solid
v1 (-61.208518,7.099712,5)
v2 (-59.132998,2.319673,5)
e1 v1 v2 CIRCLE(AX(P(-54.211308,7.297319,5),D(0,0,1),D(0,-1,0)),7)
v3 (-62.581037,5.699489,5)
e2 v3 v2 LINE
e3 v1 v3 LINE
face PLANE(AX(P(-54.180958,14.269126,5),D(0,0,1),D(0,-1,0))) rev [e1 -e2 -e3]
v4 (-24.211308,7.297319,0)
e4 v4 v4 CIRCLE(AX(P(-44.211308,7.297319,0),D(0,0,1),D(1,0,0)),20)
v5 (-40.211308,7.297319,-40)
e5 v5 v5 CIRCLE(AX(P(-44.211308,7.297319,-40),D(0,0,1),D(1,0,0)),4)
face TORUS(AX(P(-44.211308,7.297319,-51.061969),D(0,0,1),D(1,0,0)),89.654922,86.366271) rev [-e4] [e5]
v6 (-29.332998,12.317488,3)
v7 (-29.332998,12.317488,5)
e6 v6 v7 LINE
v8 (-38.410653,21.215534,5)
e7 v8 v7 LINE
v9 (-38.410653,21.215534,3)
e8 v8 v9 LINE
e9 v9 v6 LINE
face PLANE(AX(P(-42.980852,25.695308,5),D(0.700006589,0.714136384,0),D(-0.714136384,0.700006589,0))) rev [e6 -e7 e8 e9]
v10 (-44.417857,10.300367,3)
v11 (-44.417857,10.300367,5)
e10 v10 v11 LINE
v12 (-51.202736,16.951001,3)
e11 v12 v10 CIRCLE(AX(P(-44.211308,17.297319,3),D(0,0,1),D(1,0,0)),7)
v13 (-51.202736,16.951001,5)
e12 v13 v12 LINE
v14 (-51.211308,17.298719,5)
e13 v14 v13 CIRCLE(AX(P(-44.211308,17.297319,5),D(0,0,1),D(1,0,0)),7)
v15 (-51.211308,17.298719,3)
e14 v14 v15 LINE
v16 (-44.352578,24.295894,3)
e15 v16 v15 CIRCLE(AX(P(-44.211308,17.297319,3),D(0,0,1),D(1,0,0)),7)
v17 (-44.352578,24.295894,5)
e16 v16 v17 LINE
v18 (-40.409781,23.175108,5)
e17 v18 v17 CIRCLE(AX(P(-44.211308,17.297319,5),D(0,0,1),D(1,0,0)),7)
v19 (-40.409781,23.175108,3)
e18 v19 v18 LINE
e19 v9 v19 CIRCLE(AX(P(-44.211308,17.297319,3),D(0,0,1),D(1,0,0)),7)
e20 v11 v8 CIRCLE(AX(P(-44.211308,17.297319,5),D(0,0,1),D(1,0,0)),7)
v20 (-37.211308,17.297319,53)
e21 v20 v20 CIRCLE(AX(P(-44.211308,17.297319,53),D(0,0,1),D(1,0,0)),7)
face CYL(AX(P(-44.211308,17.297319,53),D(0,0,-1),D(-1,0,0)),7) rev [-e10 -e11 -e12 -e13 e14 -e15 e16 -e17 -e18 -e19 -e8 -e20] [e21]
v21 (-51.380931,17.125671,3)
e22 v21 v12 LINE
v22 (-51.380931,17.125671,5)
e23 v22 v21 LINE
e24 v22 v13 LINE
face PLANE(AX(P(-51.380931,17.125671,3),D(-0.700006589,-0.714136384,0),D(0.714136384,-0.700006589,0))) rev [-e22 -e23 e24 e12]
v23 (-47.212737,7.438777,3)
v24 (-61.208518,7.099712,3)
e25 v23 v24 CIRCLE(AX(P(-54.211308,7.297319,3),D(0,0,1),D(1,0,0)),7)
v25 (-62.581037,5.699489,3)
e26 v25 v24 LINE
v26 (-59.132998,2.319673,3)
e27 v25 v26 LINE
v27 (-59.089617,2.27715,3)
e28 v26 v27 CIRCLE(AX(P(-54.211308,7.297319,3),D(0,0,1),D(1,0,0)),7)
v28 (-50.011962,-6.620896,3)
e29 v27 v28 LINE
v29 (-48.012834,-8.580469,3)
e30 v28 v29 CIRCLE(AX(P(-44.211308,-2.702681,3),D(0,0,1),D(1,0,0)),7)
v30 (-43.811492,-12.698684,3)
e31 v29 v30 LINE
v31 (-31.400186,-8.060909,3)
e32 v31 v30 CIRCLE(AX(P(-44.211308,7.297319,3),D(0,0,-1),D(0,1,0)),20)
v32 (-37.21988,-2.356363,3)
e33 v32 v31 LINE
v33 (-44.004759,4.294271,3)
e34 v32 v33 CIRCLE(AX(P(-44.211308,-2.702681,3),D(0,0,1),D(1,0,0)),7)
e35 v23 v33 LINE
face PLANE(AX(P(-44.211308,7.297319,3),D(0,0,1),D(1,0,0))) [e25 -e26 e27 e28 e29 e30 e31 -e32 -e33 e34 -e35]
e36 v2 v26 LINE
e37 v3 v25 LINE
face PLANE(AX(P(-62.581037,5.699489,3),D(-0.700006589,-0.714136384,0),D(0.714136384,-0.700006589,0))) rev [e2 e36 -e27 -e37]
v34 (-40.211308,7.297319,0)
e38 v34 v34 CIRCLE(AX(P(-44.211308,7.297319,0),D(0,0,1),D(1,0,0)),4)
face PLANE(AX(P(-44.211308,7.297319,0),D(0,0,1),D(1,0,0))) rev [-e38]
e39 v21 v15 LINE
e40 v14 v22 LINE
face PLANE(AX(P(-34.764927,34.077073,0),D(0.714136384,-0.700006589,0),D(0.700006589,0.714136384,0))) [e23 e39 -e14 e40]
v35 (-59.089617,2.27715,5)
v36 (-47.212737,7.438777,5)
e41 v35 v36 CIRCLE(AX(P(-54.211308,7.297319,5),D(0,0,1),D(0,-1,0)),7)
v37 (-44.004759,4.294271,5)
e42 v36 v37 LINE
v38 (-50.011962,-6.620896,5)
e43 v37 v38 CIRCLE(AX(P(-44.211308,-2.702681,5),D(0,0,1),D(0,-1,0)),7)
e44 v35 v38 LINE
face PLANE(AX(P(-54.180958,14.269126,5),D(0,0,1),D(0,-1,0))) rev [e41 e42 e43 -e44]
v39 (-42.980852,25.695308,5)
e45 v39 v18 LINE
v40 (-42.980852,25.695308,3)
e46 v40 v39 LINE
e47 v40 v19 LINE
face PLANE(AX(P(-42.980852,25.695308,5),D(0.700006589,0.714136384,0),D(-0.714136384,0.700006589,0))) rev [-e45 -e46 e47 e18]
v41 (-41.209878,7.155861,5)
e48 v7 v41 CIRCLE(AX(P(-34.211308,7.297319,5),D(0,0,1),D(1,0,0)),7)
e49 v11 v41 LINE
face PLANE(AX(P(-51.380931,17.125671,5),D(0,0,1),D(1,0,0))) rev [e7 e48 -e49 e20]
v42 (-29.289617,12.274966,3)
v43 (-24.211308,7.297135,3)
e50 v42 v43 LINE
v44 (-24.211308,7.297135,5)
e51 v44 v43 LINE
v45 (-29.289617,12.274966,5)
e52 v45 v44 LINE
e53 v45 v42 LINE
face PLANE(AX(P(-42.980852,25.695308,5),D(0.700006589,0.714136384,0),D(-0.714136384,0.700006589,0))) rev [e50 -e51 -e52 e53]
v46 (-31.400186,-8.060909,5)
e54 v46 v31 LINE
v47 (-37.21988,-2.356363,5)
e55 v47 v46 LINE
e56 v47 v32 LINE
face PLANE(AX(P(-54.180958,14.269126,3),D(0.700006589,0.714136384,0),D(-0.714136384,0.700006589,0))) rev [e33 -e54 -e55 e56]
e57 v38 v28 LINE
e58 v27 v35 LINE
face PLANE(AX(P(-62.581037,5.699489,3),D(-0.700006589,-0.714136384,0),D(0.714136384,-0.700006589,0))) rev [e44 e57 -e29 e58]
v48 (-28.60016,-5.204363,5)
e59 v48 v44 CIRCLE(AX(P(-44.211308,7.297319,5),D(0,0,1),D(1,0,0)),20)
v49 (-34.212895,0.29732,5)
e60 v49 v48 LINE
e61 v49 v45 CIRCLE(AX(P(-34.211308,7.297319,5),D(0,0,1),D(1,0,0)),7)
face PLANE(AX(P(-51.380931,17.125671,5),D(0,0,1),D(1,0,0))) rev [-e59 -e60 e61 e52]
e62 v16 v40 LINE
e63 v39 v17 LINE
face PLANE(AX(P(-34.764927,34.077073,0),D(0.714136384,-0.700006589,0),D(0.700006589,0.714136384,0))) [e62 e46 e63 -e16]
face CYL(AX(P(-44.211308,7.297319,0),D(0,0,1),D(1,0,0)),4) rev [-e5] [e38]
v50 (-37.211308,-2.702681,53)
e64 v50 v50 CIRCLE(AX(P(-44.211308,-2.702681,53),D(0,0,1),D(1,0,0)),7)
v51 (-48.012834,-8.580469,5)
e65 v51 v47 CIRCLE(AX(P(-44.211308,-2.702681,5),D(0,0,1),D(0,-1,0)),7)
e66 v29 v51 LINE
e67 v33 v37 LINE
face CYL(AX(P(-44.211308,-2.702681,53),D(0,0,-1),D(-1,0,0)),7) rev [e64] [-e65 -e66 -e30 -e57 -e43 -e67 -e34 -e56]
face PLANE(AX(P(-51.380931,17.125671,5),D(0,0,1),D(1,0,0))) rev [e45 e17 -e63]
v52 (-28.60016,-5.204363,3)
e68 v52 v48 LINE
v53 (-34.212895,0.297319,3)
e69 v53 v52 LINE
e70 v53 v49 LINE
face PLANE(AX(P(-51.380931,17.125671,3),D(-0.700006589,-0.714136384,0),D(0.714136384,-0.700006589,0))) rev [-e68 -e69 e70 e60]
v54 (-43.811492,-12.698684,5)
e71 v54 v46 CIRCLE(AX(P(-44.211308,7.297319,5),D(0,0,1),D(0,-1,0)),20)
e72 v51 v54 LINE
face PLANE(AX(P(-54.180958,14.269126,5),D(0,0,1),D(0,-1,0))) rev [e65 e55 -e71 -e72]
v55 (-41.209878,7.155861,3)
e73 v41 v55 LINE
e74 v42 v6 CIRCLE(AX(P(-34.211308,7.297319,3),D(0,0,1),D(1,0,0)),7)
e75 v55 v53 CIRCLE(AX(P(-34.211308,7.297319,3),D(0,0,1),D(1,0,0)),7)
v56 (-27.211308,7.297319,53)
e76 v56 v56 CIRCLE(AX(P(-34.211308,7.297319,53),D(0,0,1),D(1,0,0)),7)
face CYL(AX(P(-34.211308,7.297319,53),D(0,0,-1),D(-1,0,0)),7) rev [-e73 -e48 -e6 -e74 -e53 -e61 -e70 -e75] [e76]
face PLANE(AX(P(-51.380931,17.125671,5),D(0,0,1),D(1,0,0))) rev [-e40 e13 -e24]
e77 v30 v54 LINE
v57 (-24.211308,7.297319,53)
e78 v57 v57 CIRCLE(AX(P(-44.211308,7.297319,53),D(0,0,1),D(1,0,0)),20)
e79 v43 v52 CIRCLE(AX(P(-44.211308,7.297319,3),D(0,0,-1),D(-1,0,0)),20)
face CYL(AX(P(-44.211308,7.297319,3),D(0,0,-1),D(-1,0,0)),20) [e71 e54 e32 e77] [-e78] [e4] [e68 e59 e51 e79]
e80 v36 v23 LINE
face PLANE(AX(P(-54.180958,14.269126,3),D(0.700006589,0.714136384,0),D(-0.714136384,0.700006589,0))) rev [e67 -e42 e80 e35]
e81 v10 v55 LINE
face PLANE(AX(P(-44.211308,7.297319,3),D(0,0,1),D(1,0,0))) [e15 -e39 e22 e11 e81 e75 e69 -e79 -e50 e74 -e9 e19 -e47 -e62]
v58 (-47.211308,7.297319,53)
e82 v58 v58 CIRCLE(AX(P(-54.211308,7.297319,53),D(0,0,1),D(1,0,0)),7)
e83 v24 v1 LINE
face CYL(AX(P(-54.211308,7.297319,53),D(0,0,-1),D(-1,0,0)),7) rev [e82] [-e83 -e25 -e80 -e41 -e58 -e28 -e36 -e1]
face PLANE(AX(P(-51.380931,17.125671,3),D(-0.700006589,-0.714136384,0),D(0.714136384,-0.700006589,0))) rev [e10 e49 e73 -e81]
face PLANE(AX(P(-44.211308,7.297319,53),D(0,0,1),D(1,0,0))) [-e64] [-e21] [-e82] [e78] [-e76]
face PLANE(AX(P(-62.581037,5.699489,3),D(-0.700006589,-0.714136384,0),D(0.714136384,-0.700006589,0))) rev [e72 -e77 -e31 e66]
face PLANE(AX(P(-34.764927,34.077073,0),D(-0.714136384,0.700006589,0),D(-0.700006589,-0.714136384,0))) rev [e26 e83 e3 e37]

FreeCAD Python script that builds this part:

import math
import FreeCAD as App
import Part
import Sketcher

V = App.Vector
Q = App.Units.Quantity

doc = App.newDocument("Part")
body = doc.addObject("PartDesign::Body", "Body")

# Sketch on XY plane
sketch1 = body.newObject("Sketcher::SketchObject", "Sketch")
sketch1.AttachmentSupport = (doc.getObject("XY_Plane"), [""])
sketch1.MapMode = "FlatFace"
sketch1.addGeometry(Part.Circle(V(-44, 7, 0), V(0, 0, 1), 20), False)
sketch1.addConstraint([
    Sketcher.Constraint("Diameter", 0, Q("40 mm")),
    Sketcher.Constraint("DistanceY", -1, 1, 0, 3, Q("7.297319 mm")),
    Sketcher.Constraint("DistanceX", 0, 3, -1, 1, Q("44.211308 mm")),
])
pad1 = body.newObject("PartDesign::Pad", "Pad")
pad1.Profile = sketch1
pad1.Length = 3

# Sketch on XY plane
sketch2 = body.newObject("Sketcher::SketchObject", "Sketch001")
sketch2.AttachmentSupport = (doc.getObject("XY_Plane"), [""])
sketch2.MapMode = "FlatFace"
sketch2.AttachmentOffset = App.Placement(V(0, 0, 3), App.Rotation())
sketch2.addGeometry([
    Part.Circle(V(-44, 7, 0), V(0, 0, 1), 20),  # 0
    Part.Circle(V(-44, -3, 0), V(0, 0, 1), 7),  # 1
    Part.Circle(V(-54, 7, 0), V(0, 0, 1), 7),  # 2
    Part.Circle(V(-34, 7, 0), V(0, 0, 1), 7),  # 3
    Part.Circle(V(-44, 17, 0), V(0, 0, 1), 7),  # 4
], False)
sketch2.addConstraint([
    Sketcher.Constraint("Equal", 1, 2),
    Sketcher.Constraint("Equal", 2, 3),
    Sketcher.Constraint("Equal", 3, 4),
    Sketcher.Constraint("Horizontal", 0, 3, 2, 3),
    Sketcher.Constraint("Horizontal", 2, 3, 3, 3),
    Sketcher.Constraint("Vertical", 0, 3, 1, 3),
    Sketcher.Constraint("Vertical", 1, 3, 4, 3),
    Sketcher.Constraint("Diameter", 0, Q("40 mm")),
    Sketcher.Constraint("Diameter", 1, Q("14 mm")),
    Sketcher.Constraint("DistanceY", 1, 3, 0, 3, Q("10 mm")),
    Sketcher.Constraint("DistanceX", 2, 3, 0, 3, Q("10 mm")),
    Sketcher.Constraint("DistanceX", 0, 3, 3, 3, Q("10 mm")),
    Sketcher.Constraint("DistanceY", 0, 3, 4, 3, Q("10 mm")),
    Sketcher.Constraint("DistanceY", -1, 1, 0, 3, Q("7.297319 mm")),
    Sketcher.Constraint("DistanceX", 0, 3, -1, 1, Q("44.211308 mm")),
])
pad2 = body.newObject("PartDesign::Pad", "Pad001")
pad2.Profile = sketch2
pad2.Length = 50

# Sketch on XZ plane
sketch3 = body.newObject("Sketcher::SketchObject", "Sketch002")
sketch3.AttachmentSupport = (doc.getObject("XZ_Plane"), [""])
sketch3.MapMode = "FlatFace"
sketch3.AttachmentOffset = App.Placement(V(0, 0, -7.297319), App.Rotation())
sketch3.addGeometry([
    Part.LineSegment(V(-64, 0, 0), V(-48, 0, 0)),
    Part.LineSegment(V(-48, 0, 0), V(-48, -40, 0)),
    Part.ArcOfCircle(Part.Circle(V(-134, -51, 0), V(0, 0, 1), 86), math.radians(7), math.radians(36)),
], False)
sketch3.addGeometry(Part.LineSegment(V(-44, 0, 0), V(-44, -51, 0)), True)  # axis
sketch3.addConstraint([
    Sketcher.Constraint("Coincident", 0, 2, 1, 1),
    Sketcher.Constraint("Coincident", 1, 2, 2, 1),
    Sketcher.Constraint("Coincident", 2, 2, 0, 1),
    Sketcher.Constraint("Horizontal", 0),
    Sketcher.Constraint("Vertical", 1),
    Sketcher.Constraint("Vertical", 3),
    Sketcher.Constraint("PointOnObject", 0, 2, -1),
    Sketcher.Constraint("PointOnObject", 3, 1, -1),
    Sketcher.Constraint("Horizontal", 2, 3, 3, 2),
    Sketcher.Constraint("DistanceX", 0, 1, 0, 2, Q("16 mm")),
    Sketcher.Constraint("DistanceY", 1, 2, 1, 1, Q("40 mm")),
    Sketcher.Constraint("DistanceX", 0, 2, 3, 1, Q("4 mm")),
    Sketcher.Constraint("Radius", 2, Q("86.366271 mm")),
    Sketcher.Constraint("DistanceX", 2, 3, -1, 1, Q("133.86623 mm")),
])
revolution = body.newObject("PartDesign::Revolution", "Revolution")
revolution.Profile = sketch3
revolution.ReferenceAxis = (sketch3, ["Axis0"])
revolution.Angle = 360

# Sketch on an angled plane
sketch4 = body.newObject("Sketcher::SketchObject", "Sketch003")
sketch4.Placement = App.Placement(V(-11.912563, 11.676863, 0), App.Rotation(V(0, 0, -1), V(0.700006589, 0.714136384, 0), V(0.714136384, -0.700006589, 0), "ZXY"))
sketch4.addGeometry([
    Part.LineSegment(V(-5, -11.7, 0), V(-5, -23.7, 0)),  # 0
    Part.LineSegment(V(-5, -23.7, 0), V(-3, -23.7, 0)),  # 1
    Part.LineSegment(V(-3, -23.7, 0), V(-3, -11.7, 0)),  # 2
    Part.LineSegment(V(-3, -11.7, 0), V(-5, -11.7, 0)),  # 3
    Part.LineSegment(V(-5, -27.7, 0), V(-5, -39.7, 0)),  # 4
    Part.LineSegment(V(-5, -39.7, 0), V(-3, -39.7, 0)),  # 5
    Part.LineSegment(V(-3, -39.7, 0), V(-3, -27.7, 0)),  # 6
    Part.LineSegment(V(-3, -27.7, 0), V(-5, -27.7, 0)),  # 7
], False)
sketch4.addConstraint([
    Sketcher.Constraint("Coincident", 0, 2, 1, 1),
    Sketcher.Constraint("Coincident", 1, 2, 2, 1),
    Sketcher.Constraint("Coincident", 2, 2, 3, 1),
    Sketcher.Constraint("Coincident", 3, 2, 0, 1),
    Sketcher.Constraint("Coincident", 4, 2, 5, 1),
    Sketcher.Constraint("Coincident", 5, 2, 6, 1),
    Sketcher.Constraint("Coincident", 6, 2, 7, 1),
    Sketcher.Constraint("Coincident", 7, 2, 4, 1),
    Sketcher.Constraint("Vertical", 0),
    Sketcher.Constraint("Horizontal", 1),
    Sketcher.Constraint("Vertical", 2),
    Sketcher.Constraint("Horizontal", 3),
    Sketcher.Constraint("Vertical", 4),
    Sketcher.Constraint("Horizontal", 5),
    Sketcher.Constraint("Vertical", 6),
    Sketcher.Constraint("Horizontal", 7),
    Sketcher.Constraint("Vertical", 3, 2, 4, 2),
    Sketcher.Constraint("Vertical", 2, 2, 5, 2),
    Sketcher.Constraint("Equal", 2, 4),
    Sketcher.Constraint("DistanceX", 1, 1, 1, 2, Q("2 mm")),
    Sketcher.Constraint("DistanceY", 0, 2, 0, 1, Q("12 mm")),
    Sketcher.Constraint("DistanceX", 0, 2, -1, 1, Q("5 mm")),
    Sketcher.Constraint("DistanceY", 4, 2, 0, 2, Q("16 mm")),
    Sketcher.Constraint("DistanceY", 0, 2, -1, 1, Q("23.736926 mm")),
])
pocket1 = body.newObject("PartDesign::Pocket", "Pocket")
pocket1.Profile = sketch4
pocket1.Length = 32

doc.recompute()
